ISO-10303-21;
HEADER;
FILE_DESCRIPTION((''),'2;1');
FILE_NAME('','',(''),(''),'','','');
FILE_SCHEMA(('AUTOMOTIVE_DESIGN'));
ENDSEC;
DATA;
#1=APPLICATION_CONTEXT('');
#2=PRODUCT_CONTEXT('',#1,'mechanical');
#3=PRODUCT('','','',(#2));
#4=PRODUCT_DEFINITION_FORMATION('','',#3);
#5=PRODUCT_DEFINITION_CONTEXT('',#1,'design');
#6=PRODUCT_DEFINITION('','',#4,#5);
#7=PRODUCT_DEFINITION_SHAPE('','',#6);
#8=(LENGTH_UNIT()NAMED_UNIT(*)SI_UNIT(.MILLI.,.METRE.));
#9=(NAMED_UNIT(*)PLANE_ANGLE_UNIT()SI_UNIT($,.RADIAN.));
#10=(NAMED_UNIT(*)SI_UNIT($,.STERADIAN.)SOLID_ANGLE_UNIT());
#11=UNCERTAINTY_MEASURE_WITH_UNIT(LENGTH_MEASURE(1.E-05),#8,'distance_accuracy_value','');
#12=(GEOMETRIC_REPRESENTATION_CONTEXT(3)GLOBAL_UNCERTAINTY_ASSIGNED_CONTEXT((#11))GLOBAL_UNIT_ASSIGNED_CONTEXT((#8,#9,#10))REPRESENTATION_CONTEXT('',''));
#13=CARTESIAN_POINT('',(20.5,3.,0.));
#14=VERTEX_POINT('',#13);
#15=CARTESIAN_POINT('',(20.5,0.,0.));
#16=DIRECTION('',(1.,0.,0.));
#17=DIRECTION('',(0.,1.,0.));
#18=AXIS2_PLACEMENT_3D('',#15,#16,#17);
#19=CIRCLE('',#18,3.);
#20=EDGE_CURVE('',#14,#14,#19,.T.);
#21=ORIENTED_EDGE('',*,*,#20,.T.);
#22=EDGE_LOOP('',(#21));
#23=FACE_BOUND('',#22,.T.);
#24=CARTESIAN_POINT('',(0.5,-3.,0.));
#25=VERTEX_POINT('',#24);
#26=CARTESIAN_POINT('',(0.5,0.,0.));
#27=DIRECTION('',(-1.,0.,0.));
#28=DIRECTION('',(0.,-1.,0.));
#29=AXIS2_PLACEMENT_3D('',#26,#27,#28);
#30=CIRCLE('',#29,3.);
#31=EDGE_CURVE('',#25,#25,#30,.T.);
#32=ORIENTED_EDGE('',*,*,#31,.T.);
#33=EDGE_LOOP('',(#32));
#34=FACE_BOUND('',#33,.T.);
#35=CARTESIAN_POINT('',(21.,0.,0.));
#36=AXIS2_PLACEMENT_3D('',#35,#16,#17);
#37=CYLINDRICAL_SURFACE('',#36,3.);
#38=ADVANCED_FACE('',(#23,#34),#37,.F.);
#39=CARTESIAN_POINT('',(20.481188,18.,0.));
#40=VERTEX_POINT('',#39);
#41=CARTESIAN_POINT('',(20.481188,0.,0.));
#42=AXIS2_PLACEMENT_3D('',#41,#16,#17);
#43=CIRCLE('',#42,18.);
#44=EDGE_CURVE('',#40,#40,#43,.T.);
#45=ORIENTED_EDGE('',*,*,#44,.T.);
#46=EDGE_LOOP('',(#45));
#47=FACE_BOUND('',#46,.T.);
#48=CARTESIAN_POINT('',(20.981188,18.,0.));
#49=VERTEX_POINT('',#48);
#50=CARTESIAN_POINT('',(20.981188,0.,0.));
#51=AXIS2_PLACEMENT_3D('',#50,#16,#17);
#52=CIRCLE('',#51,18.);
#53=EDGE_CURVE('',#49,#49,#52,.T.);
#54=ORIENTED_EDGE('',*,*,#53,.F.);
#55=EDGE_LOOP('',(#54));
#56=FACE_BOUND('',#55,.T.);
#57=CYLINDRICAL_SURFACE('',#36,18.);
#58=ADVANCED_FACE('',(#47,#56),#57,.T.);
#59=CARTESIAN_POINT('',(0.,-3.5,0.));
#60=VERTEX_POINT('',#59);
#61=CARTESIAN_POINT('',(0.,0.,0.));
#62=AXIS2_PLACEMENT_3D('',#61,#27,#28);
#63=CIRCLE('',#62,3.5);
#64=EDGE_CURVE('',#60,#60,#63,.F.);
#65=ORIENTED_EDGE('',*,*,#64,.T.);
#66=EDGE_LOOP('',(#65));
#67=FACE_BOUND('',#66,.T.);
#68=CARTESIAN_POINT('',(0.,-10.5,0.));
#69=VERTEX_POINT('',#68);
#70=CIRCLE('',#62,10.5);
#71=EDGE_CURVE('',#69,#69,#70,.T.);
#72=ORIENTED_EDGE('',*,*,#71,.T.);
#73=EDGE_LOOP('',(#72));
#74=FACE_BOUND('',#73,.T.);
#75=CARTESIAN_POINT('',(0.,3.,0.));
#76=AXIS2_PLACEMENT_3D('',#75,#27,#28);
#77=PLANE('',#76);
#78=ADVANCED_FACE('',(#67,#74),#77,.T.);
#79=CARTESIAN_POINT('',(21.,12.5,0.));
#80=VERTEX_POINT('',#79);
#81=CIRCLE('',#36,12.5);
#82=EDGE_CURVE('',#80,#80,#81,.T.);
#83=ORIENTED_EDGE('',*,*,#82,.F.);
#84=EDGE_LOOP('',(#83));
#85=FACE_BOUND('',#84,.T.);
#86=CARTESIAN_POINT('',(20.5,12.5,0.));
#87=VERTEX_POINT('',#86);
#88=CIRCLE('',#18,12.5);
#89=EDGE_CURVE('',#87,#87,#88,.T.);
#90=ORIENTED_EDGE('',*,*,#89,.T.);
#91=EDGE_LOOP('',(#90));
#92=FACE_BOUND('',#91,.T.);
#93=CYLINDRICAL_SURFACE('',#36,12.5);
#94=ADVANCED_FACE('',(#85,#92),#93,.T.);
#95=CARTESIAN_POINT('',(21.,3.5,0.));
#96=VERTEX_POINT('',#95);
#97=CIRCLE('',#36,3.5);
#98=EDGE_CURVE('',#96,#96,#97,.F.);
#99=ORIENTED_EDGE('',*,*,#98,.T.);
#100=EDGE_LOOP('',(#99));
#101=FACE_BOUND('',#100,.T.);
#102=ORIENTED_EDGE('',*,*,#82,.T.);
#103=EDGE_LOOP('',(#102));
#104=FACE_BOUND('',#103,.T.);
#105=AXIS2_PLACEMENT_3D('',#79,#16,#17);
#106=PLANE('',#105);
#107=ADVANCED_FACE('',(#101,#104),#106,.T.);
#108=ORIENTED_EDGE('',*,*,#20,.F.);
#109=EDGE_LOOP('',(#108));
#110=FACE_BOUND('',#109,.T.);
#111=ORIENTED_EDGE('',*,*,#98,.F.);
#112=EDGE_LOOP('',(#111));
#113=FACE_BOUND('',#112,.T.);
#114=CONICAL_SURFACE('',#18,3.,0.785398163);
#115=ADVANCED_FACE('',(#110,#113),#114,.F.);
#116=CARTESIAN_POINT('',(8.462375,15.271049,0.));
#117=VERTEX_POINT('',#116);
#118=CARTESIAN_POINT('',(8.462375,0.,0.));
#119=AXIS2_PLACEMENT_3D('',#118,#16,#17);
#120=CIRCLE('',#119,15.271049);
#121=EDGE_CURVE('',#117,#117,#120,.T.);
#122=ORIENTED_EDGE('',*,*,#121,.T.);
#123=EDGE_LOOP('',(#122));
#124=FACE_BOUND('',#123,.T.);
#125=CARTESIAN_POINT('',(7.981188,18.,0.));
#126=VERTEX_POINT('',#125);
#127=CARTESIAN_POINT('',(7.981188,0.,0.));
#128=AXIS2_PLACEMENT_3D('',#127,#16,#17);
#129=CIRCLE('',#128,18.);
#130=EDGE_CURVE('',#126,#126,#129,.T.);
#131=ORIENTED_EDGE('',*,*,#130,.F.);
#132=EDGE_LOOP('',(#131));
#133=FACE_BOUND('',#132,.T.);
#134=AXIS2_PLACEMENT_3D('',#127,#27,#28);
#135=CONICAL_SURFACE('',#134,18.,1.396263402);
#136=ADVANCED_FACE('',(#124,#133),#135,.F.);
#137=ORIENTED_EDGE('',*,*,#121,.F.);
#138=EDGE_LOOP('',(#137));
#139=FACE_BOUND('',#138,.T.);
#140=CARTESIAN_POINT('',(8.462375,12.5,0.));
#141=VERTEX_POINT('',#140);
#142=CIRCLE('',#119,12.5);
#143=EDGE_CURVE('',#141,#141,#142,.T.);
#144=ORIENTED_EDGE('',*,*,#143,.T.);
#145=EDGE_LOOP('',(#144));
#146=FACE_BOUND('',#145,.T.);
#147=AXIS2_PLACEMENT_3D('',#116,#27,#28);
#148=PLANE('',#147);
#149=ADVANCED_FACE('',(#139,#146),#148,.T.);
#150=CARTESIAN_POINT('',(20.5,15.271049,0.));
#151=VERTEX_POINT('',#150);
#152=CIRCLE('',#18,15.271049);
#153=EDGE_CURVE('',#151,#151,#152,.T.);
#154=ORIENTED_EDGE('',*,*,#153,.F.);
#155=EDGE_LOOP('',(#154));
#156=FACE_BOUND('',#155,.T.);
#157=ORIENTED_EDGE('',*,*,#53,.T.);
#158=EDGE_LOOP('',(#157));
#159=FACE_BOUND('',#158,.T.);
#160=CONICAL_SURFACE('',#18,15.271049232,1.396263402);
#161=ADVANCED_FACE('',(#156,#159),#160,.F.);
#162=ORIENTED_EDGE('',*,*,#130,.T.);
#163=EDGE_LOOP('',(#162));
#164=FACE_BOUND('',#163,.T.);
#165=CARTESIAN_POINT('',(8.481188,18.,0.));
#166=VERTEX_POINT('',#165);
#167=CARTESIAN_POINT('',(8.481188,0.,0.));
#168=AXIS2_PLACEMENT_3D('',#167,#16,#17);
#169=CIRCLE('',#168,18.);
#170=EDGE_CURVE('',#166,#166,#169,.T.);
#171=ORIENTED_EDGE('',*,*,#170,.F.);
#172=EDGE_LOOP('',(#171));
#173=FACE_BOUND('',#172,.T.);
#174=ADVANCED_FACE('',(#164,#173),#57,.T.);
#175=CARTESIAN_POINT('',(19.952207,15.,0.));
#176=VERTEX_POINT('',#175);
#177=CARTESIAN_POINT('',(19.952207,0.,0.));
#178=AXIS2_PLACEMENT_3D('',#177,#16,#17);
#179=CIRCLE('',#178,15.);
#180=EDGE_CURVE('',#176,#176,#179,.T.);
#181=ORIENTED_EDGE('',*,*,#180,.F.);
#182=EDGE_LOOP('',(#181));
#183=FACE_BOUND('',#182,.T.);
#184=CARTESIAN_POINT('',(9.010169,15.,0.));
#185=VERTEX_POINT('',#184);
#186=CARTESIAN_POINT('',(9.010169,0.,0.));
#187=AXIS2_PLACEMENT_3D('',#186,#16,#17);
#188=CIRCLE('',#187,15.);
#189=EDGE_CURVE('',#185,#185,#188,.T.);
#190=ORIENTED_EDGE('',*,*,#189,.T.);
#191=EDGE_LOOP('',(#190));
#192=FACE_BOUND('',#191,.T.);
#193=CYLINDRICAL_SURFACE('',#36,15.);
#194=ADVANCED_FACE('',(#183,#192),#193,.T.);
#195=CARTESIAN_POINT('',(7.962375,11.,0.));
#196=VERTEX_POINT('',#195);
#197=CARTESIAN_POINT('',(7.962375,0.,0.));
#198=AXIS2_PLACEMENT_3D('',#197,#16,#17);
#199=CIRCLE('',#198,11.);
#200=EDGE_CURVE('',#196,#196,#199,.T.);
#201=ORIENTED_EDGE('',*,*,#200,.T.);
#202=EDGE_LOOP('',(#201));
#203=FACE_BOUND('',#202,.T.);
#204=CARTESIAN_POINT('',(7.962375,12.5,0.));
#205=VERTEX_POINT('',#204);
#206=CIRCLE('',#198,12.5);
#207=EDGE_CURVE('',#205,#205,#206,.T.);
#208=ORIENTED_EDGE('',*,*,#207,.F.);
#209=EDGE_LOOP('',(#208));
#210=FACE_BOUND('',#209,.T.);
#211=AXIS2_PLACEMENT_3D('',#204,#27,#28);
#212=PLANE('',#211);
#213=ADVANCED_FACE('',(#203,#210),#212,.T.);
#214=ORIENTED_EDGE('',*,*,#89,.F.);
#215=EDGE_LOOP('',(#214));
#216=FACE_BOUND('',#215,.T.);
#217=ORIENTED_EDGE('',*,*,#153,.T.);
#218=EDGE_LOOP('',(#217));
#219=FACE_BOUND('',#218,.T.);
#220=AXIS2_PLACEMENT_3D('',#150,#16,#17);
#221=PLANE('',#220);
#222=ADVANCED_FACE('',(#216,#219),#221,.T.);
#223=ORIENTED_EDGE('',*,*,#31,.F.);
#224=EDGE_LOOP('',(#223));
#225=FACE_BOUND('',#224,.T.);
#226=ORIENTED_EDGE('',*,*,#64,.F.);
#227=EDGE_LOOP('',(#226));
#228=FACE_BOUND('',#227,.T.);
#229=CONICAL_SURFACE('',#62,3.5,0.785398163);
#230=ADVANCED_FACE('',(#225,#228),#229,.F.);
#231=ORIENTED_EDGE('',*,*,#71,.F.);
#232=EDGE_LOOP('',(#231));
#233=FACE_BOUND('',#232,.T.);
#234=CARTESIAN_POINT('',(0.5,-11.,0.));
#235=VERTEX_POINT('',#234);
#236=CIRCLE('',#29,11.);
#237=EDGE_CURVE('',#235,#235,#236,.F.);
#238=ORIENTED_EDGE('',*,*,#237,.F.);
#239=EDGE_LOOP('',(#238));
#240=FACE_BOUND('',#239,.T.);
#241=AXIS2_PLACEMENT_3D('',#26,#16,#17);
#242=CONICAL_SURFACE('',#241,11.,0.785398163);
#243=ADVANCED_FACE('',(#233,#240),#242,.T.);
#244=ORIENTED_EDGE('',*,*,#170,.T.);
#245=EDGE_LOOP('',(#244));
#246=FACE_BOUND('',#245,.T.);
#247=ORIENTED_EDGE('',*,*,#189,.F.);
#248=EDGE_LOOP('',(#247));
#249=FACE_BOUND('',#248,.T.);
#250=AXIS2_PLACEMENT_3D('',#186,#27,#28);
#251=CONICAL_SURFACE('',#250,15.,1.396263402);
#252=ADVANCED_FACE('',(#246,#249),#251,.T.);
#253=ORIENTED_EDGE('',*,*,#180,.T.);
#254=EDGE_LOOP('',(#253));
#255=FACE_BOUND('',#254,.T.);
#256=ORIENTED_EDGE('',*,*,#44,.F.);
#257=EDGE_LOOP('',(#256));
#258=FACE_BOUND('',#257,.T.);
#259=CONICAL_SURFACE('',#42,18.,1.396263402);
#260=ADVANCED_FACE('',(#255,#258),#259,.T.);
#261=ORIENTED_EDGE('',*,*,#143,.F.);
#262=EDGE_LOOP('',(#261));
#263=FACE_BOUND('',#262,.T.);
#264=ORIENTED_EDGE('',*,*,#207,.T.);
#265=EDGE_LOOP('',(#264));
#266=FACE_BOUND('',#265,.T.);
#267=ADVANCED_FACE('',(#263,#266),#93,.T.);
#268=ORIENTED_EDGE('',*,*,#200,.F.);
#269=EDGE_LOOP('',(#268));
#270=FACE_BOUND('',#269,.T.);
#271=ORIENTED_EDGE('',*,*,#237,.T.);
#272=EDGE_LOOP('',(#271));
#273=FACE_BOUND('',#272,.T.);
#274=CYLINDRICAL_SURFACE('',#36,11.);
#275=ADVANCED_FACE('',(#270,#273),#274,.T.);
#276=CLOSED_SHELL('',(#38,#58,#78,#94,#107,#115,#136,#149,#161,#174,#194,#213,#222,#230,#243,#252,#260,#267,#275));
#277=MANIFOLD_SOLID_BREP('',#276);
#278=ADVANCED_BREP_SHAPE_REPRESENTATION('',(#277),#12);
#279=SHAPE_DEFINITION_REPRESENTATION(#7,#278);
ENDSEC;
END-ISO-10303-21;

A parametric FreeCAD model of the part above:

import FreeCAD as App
import Part
import Sketcher
Q = App.Units.Quantity


def edges_at(feature, points):
    """Names of the edges that pass closest to the given points."""
    edges = feature.Shape.Edges
    near = lambda p: min(range(len(edges)), key=lambda i: edges[i].distToShape(Part.Vertex(*p))[0])
    return sorted({f"Edge{near(p) + 1}" for p in points})


def add_polygon(sketch, points):
    """Adds a closed chain of lines whose ends are joined by coincident constraints."""
    first, n = sketch.GeometryCount, len(points)
    for a, b in zip(points, points[1:] + points[:1]):
        sketch.addGeometry(Part.LineSegment(App.Vector(*a, 0), App.Vector(*b, 0)), False)
    for i in range(n):
        sketch.addConstraint(Sketcher.Constraint("Coincident", first + i, 2, first + (i + 1) % n, 1))

doc = App.newDocument("Part")
params = doc.addObject("Spreadsheet::Sheet", "Params")
for row, (alias, value) in enumerate([
    ("sketch1_width", "21 mm"),
    ("sketch1_height", "8 mm"),
    ("sketch1_width2", "0.5 mm"),
    ("sketch1_height2", "9.5 mm"),
    ("revolution_angle", "360 deg"),
    ("chamfer_size", "0.5 mm"),
], start=1):
    params.set(f"A{row}", alias)
    params.set(f"B{row}", "=" + value)
    params.setAlias(f"B{row}", alias)

body = doc.addObject("PartDesign::Body", "Body")

sketch1 = body.newObject("Sketcher::SketchObject", "Sketch")
sketch1.AttachmentSupport = (doc.getObject("XY_Plane"), [""])
sketch1.MapMode = "FlatFace"
add_polygon(sketch1, [(0, 11), (0, 3), (21, 3), (21, 12.5), (20.5, 12.5), (20.5, 15.3), (21, 18), (20.5, 18), (20, 15), (9, 15), (8.5, 18), (8, 18), (8.5, 15.3), (8.5, 12.5), (8, 12.5), (8, 11)])
sketch1.addConstraint([
    Sketcher.Constraint("Vertical", 0),
    Sketcher.Constraint("Horizontal", 1),
    Sketcher.Constraint("Vertical", 2),
    Sketcher.Constraint("Horizontal", 3),
    Sketcher.Constraint("Vertical", 4),
    Sketcher.Constraint("Horizontal", 6),
    Sketcher.Constraint("Horizontal", 8),
    Sketcher.Constraint("Horizontal", 10),
    Sketcher.Constraint("Vertical", 12),
    Sketcher.Constraint("Horizontal", 13),
    Sketcher.Constraint("Vertical", 14),
    Sketcher.Constraint("Horizontal", 15),
    Sketcher.Constraint("PointOnObject", 0, 2, -2),
    Sketcher.Constraint("Parallel", 5, 7),
    Sketcher.Constraint("Parallel", 9, 11),
    Sketcher.Constraint("Horizontal", 6, 2, 9, 2),
    Sketcher.Constraint("Horizontal", 4, 2, 11, 2),
    Sketcher.Constraint("Horizontal", 3, 2, 12, 2),
    Sketcher.Constraint("Equal", 3, 6),
    Sketcher.Constraint("Equal", 6, 10),
    Sketcher.Constraint("Equal", 10, 13),
    Sketcher.Constraint("Equal", 7, 9),
    Sketcher.Constraint("DistanceX", 1, 1, 1, 2, Q("21 mm")),
    Sketcher.Constraint("DistanceY", 0, 2, 0, 1, Q("8 mm")),
    Sketcher.Constraint("Angle", 5, Q("80 deg")),
    Sketcher.Constraint("DistanceX", 3, 2, 3, 1, Q("0.5 mm")),
    Sketcher.Constraint("DistanceY", 2, 1, 2, 2, Q("9.5 mm")),
    Sketcher.Constraint("DistanceY", -1, 1, 0, 2, Q("3 mm")),
    Sketcher.Constraint("DistanceY", -1, 1, 5, 2, Q("18 mm")),
    Sketcher.Constraint("DistanceY", -1, 1, 7, 2, Q("15 mm")),
    Sketcher.Constraint("DistanceX", 9, 2, 6, 2, Q("12 mm")),
    Sketcher.Constraint("DistanceY", 4, 1, 4, 2, Q("2.771049 mm")),
])
sketch1.setExpression("Constraints[38]", "Params.sketch1_width")
sketch1.setExpression("Constraints[39]", "Params.sketch1_height")
sketch1.setExpression("Constraints[41]", "Params.sketch1_width2")
sketch1.setExpression("Constraints[42]", "Params.sketch1_height2")
revolution = body.newObject("PartDesign::Revolution", "Revolution")
revolution.Profile = sketch1
revolution.ReferenceAxis = (sketch1, ["H_Axis"])
revolution.setExpression("Angle", "Params.revolution_angle")
doc.recompute()

chamfer = body.newObject("PartDesign::Chamfer", "Chamfer")
chamfer.Base = (revolution, edges_at(revolution, [(0, -11, 0), (0, -3, 0), (21, -3, 0)]))
chamfer.setExpression("Size", "Params.chamfer_size")

doc.recompute()
